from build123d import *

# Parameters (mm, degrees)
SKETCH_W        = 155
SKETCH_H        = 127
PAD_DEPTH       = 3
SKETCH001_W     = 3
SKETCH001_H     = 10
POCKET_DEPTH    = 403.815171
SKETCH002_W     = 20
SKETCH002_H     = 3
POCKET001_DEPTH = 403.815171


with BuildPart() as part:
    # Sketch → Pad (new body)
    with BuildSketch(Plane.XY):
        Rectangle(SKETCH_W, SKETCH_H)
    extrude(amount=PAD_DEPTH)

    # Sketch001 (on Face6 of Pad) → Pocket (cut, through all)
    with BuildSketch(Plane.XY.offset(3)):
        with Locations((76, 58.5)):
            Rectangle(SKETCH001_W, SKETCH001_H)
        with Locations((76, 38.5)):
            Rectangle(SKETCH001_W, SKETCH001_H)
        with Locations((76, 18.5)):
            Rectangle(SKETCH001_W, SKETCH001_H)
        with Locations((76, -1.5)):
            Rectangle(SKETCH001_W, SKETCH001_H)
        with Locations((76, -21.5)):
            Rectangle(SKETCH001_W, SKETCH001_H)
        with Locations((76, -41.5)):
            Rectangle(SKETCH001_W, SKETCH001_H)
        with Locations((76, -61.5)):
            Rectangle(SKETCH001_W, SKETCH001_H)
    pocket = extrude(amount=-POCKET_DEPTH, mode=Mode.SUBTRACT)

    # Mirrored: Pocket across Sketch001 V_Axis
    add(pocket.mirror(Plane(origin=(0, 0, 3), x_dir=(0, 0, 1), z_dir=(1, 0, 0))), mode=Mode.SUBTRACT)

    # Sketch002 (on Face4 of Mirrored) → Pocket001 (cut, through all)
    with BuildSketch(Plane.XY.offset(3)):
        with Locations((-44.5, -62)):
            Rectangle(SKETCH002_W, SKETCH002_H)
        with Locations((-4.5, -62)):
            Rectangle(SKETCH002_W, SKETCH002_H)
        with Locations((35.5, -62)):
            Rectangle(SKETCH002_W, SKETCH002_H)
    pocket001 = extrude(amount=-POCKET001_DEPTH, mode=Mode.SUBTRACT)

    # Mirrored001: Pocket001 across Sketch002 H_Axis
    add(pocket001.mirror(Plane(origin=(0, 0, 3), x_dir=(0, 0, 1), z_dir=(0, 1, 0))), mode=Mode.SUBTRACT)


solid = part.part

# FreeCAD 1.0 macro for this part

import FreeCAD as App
import Part
import Sketcher
from FreeCAD import Vector
Q = App.Units.Quantity

doc = App.newDocument("Part")
body = doc.addObject("PartDesign::Body", "Body")

# Sketch on XY plane
sketch1 = body.newObject("Sketcher::SketchObject", "Sketch")
sketch1.AttachmentSupport = (doc.getObject("XY_Plane"), [""])
sketch1.MapMode = "FlatFace"
sketch1.addGeometry(Part.LineSegment(Vector(-78, 64, 0), Vector(-78, -64, 0)), False)
sketch1.addGeometry(Part.LineSegment(Vector(-78, -64, 0), Vector(78, -64, 0)), False)
sketch1.addGeometry(Part.LineSegment(Vector(78, -64, 0), Vector(78, 64, 0)), False)
sketch1.addGeometry(Part.LineSegment(Vector(78, 64, 0), Vector(-78, 64, 0)), False)
sketch1.addConstraint(Sketcher.Constraint("Coincident", 0, 2, 1, 1))
sketch1.addConstraint(Sketcher.Constraint("Coincident", 1, 2, 2, 1))
sketch1.addConstraint(Sketcher.Constraint("Coincident", 2, 2, 3, 1))
sketch1.addConstraint(Sketcher.Constraint("Coincident", 3, 2, 0, 1))
sketch1.addConstraint(Sketcher.Constraint("Vertical", 0))
sketch1.addConstraint(Sketcher.Constraint("Horizontal", 1))
sketch1.addConstraint(Sketcher.Constraint("Vertical", 2))
sketch1.addConstraint(Sketcher.Constraint("Horizontal", 3))
sketch1.addConstraint(Sketcher.Constraint("Symmetric", 0, 2, 2, 2, -1, 1))
sketch1.addConstraint(Sketcher.Constraint("DistanceX", 1, 1, 1, 2, Q("155 mm")))
sketch1.addConstraint(Sketcher.Constraint("DistanceY", 0, 2, 0, 1, Q("127 mm")))
pad1 = body.newObject("PartDesign::Pad", "Pad")
pad1.Profile = sketch1
pad1.Length = 3

# Sketch on XY plane
sketch2 = body.newObject("Sketcher::SketchObject", "Sketch001")
sketch2.AttachmentSupport = (doc.getObject("XY_Plane"), [""])
sketch2.MapMode = "FlatFace"
sketch2.AttachmentOffset = App.Placement(Vector(0, 0, 3), App.Rotation())
sketch2.addGeometry(Part.LineSegment(Vector(74.5, 63.5, 0), Vector(74.5, 53.5, 0)), False)
sketch2.addGeometry(Part.LineSegment(Vector(74.5, 53.5, 0), Vector(77.5, 53.5, 0)), False)
sketch2.addGeometry(Part.LineSegment(Vector(77.5, 53.5, 0), Vector(77.5, 63.5, 0)), False)
sketch2.addGeometry(Part.LineSegment(Vector(77.5, 63.5, 0), Vector(74.5, 63.5, 0)), False)
sketch2.addGeometry(Part.LineSegment(Vector(74.5, 43.5, 0), Vector(74.5, 33.5, 0)), False)
sketch2.addGeometry(Part.LineSegment(Vector(74.5, 33.5, 0), Vector(77.5, 33.5, 0)), False)
sketch2.addGeometry(Part.LineSegment(Vector(77.5, 33.5, 0), Vector(77.5, 43.5, 0)), False)
sketch2.addGeometry(Part.LineSegment(Vector(77.5, 43.5, 0), Vector(74.5, 43.5, 0)), False)
sketch2.addGeometry(Part.LineSegment(Vector(74.5, 23.5, 0), Vector(74.5, 13.5, 0)), False)
sketch2.addGeometry(Part.LineSegment(Vector(74.5, 13.5, 0), Vector(77.5, 13.5, 0)), False)
sketch2.addGeometry(Part.LineSegment(Vector(77.5, 13.5, 0), Vector(77.5, 23.5, 0)), False)
sketch2.addGeometry(Part.LineSegment(Vector(77.5, 23.5, 0), Vector(74.5, 23.5, 0)), False)
sketch2.addGeometry(Part.LineSegment(Vector(74.5, 3.5, 0), Vector(74.5, -6.5, 0)), False)
sketch2.addGeometry(Part.LineSegment(Vector(74.5, -6.5, 0), Vector(77.5, -6.5, 0)), False)
sketch2.addGeometry(Part.LineSegment(Vector(77.5, -6.5, 0), Vector(77.5, 3.5, 0)), False)
sketch2.addGeometry(Part.LineSegment(Vector(77.5, 3.5, 0), Vector(74.5, 3.5, 0)), False)
sketch2.addGeometry(Part.LineSegment(Vector(74.5, -16.5, 0), Vector(74.5, -26.5, 0)), False)
sketch2.addGeometry(Part.LineSegment(Vector(74.5, -26.5, 0), Vector(77.5, -26.5, 0)), False)
sketch2.addGeometry(Part.LineSegment(Vector(77.5, -26.5, 0), Vector(77.5, -16.5, 0)), False)
sketch2.addGeometry(Part.LineSegment(Vector(77.5, -16.5, 0), Vector(74.5, -16.5, 0)), False)
sketch2.addGeometry(Part.LineSegment(Vector(74.5, -36.5, 0), Vector(74.5, -46.5, 0)), False)
sketch2.addGeometry(Part.LineSegment(Vector(74.5, -46.5, 0), Vector(77.5, -46.5, 0)), False)
sketch2.addGeometry(Part.LineSegment(Vector(77.5, -46.5, 0), Vector(77.5, -36.5, 0)), False)
sketch2.addGeometry(Part.LineSegment(Vector(77.5, -36.5, 0), Vector(74.5, -36.5, 0)), False)
sketch2.addGeometry(Part.LineSegment(Vector(74.5, -56.5, 0), Vector(74.5, -66.5, 0)), False)
sketch2.addGeometry(Part.LineSegment(Vector(74.5, -66.5, 0), Vector(77.5, -66.5, 0)), False)
sketch2.addGeometry(Part.LineSegment(Vector(77.5, -66.5, 0), Vector(77.5, -56.5, 0)), False)
sketch2.addGeometry(Part.LineSegment(Vector(77.5, -56.5, 0), Vector(74.5, -56.5, 0)), False)
sketch2.addConstraint(Sketcher.Constraint("Coincident", 0, 2, 1, 1))
sketch2.addConstraint(Sketcher.Constraint("Coincident", 1, 2, 2, 1))
sketch2.addConstraint(Sketcher.Constraint("Coincident", 2, 2, 3, 1))
sketch2.addConstraint(Sketcher.Constraint("Coincident", 3, 2, 0, 1))
sketch2.addConstraint(Sketcher.Constraint("Coincident", 4, 2, 5, 1))
sketch2.addConstraint(Sketcher.Constraint("Coincident", 5, 2, 6, 1))
sketch2.addConstraint(Sketcher.Constraint("Coincident", 6, 2, 7, 1))
sketch2.addConstraint(Sketcher.Constraint("Coincident", 7, 2, 4, 1))
sketch2.addConstraint(Sketcher.Constraint("Coincident", 8, 2, 9, 1))
sketch2.addConstraint(Sketcher.Constraint("Coincident", 9, 2, 10, 1))
sketch2.addConstraint(Sketcher.Constraint("Coincident", 10, 2, 11, 1))
sketch2.addConstraint(Sketcher.Constraint("Coincident", 11, 2, 8, 1))
sketch2.addConstraint(Sketcher.Constraint("Coincident", 12, 2, 13, 1))
sketch2.addConstraint(Sketcher.Constraint("Coincident", 13, 2, 14, 1))
sketch2.addConstraint(Sketcher.Constraint("Coincident", 14, 2, 15, 1))
sketch2.addConstraint(Sketcher.Constraint("Coincident", 15, 2, 12, 1))
sketch2.addConstraint(Sketcher.Constraint("Coincident", 16, 2, 17, 1))
sketch2.addConstraint(Sketcher.Constraint("Coincident", 17, 2, 18, 1))
sketch2.addConstraint(Sketcher.Constraint("Coincident", 18, 2, 19, 1))
sketch2.addConstraint(Sketcher.Constraint("Coincident", 19, 2, 16, 1))
sketch2.addConstraint(Sketcher.Constraint("Coincident", 20, 2, 21, 1))
sketch2.addConstraint(Sketcher.Constraint("Coincident", 21, 2, 22, 1))
sketch2.addConstraint(Sketcher.Constraint("Coincident", 22, 2, 23, 1))
sketch2.addConstraint(Sketcher.Constraint("Coincident", 23, 2, 20, 1))
sketch2.addConstraint(Sketcher.Constraint("Coincident", 24, 2, 25, 1))
sketch2.addConstraint(Sketcher.Constraint("Coincident", 25, 2, 26, 1))
sketch2.addConstraint(Sketcher.Constraint("Coincident", 26, 2, 27, 1))
sketch2.addConstraint(Sketcher.Constraint("Coincident", 27, 2, 24, 1))
sketch2.addConstraint(Sketcher.Constraint("Vertical", 0))
sketch2.addConstraint(Sketcher.Constraint("Horizontal", 1))
sketch2.addConstraint(Sketcher.Constraint("Vertical", 2))
sketch2.addConstraint(Sketcher.Constraint("Horizontal", 3))
sketch2.addConstraint(Sketcher.Constraint("Vertical", 4))
sketch2.addConstraint(Sketcher.Constraint("Horizontal", 5))
sketch2.addConstraint(Sketcher.Constraint("Vertical", 6))
sketch2.addConstraint(Sketcher.Constraint("Horizontal", 7))
sketch2.addConstraint(Sketcher.Constraint("Vertical", 8))
sketch2.addConstraint(Sketcher.Constraint("Horizontal", 9))
sketch2.addConstraint(Sketcher.Constraint("Vertical", 10))
sketch2.addConstraint(Sketcher.Constraint("Horizontal", 11))
sketch2.addConstraint(Sketcher.Constraint("Vertical", 12))
sketch2.addConstraint(Sketcher.Constraint("Horizontal", 13))
sketch2.addConstraint(Sketcher.Constraint("Vertical", 14))
sketch2.addConstraint(Sketcher.Constraint("Horizontal", 15))
sketch2.addConstraint(Sketcher.Constraint("Vertical", 16))
sketch2.addConstraint(Sketcher.Constraint("Horizontal", 17))
sketch2.addConstraint(Sketcher.Constraint("Vertical", 18))
sketch2.addConstraint(Sketcher.Constraint("Horizontal", 19))
sketch2.addConstraint(Sketcher.Constraint("Vertical", 20))
sketch2.addConstraint(Sketcher.Constraint("Horizontal", 21))
sketch2.addConstraint(Sketcher.Constraint("Vertical", 22))
sketch2.addConstraint(Sketcher.Constraint("Horizontal", 23))
sketch2.addConstraint(Sketcher.Constraint("Vertical", 24))
sketch2.addConstraint(Sketcher.Constraint("Horizontal", 25))
sketch2.addConstraint(Sketcher.Constraint("Vertical", 26))
sketch2.addConstraint(Sketcher.Constraint("Horizontal", 27))
sketch2.addConstraint(Sketcher.Constraint("Vertical", 3, 2, 4, 2))
sketch2.addConstraint(Sketcher.Constraint("Vertical", 2, 2, 5, 2))
sketch2.addConstraint(Sketcher.Constraint("Vertical", 7, 2, 8, 2))
sketch2.addConstraint(Sketcher.Constraint("Vertical", 6, 2, 9, 2))
sketch2.addConstraint(Sketcher.Constraint("Vertical", 11, 2, 12, 2))
sketch2.addConstraint(Sketcher.Constraint("Vertical", 10, 2, 13, 2))
sketch2.addConstraint(Sketcher.Constraint("Vertical", 15, 2, 16, 2))
sketch2.addConstraint(Sketcher.Constraint("Vertical", 14, 2, 17, 2))
sketch2.addConstraint(Sketcher.Constraint("Vertical", 19, 2, 20, 2))
sketch2.addConstraint(Sketcher.Constraint("Vertical", 18, 2, 21, 2))
sketch2.addConstraint(Sketcher.Constraint("Vertical", 23, 2, 24, 2))
sketch2.addConstraint(Sketcher.Constraint("Vertical", 22, 2, 25, 2))
sketch2.addConstraint(Sketcher.Constraint("Equal", 2, 4))
sketch2.addConstraint(Sketcher.Constraint("Equal", 6, 8))
sketch2.addConstraint(Sketcher.Constraint("Equal", 10, 12))
sketch2.addConstraint(Sketcher.Constraint("Equal", 14, 16))
sketch2.addConstraint(Sketcher.Constraint("Equal", 18, 20))
sketch2.addConstraint(Sketcher.Constraint("Equal", 22, 24))
sketch2.addConstraint(Sketcher.Constraint("DistanceX", 1, 1, 1, 2, Q("3 mm")))
sketch2.addConstraint(Sketcher.Constraint("DistanceY", 0, 2, 0, 1, Q("10 mm")))
sketch2.addConstraint(Sketcher.Constraint("DistanceY", 4, 2, 0, 2, Q("20 mm")))
sketch2.addConstraint(Sketcher.Constraint("DistanceY", 8, 2, 4, 2, Q("20 mm")))
sketch2.addConstraint(Sketcher.Constraint("DistanceY", 12, 2, 8, 2, Q("20 mm")))
sketch2.addConstraint(Sketcher.Constraint("DistanceY", 16, 2, 12, 2, Q("20 mm")))
sketch2.addConstraint(Sketcher.Constraint("DistanceY", 20, 2, 16, 2, Q("20 mm")))
sketch2.addConstraint(Sketcher.Constraint("DistanceY", 24, 2, 20, 2, Q("20 mm")))
sketch2.addConstraint(Sketcher.Constraint("DistanceX", -1, 1, 0, 2, Q("74.5 mm")))
sketch2.addConstraint(Sketcher.Constraint("DistanceY", -1, 1, 0, 2, Q("53.5 mm")))
pocket1 = body.newObject("PartDesign::Pocket", "Pocket")
pocket1.Profile = sketch2
pocket1.Type = "ThroughAll"
doc.recompute()

mirrored = body.newObject("PartDesign::Mirrored", "Mirrored")
mirrored.Originals = [pocket1]
mirrored.MirrorPlane = (doc.getObject("YZ_Plane"), [""])
body.Tip = mirrored

# Sketch on XY plane
sketch3 = body.newObject("Sketcher::SketchObject", "Sketch002")
sketch3.AttachmentSupport = (doc.getObject("XY_Plane"), [""])
sketch3.MapMode = "FlatFace"
sketch3.AttachmentOffset = App.Placement(Vector(0, 0, 3), App.Rotation())
sketch3.addGeometry(Part.LineSegment(Vector(-54.5, -60.5, 0), Vector(-54.5, -63.5, 0)), False)
sketch3.addGeometry(Part.LineSegment(Vector(-54.5, -63.5, 0), Vector(-34.5, -63.5, 0)), False)
sketch3.addGeometry(Part.LineSegment(Vector(-34.5, -63.5, 0), Vector(-34.5, -60.5, 0)), False)
sketch3.addGeometry(Part.LineSegment(Vector(-34.5, -60.5, 0), Vector(-54.5, -60.5, 0)), False)
sketch3.addGeometry(Part.LineSegment(Vector(-14.5, -60.5, 0), Vector(-14.5, -63.5, 0)), False)
sketch3.addGeometry(Part.LineSegment(Vector(-14.5, -63.5, 0), Vector(5.5, -63.5, 0)), False)
sketch3.addGeometry(Part.LineSegment(Vector(5.5, -63.5, 0), Vector(5.5, -60.5, 0)), False)
sketch3.addGeometry(Part.LineSegment(Vector(5.5, -60.5, 0), Vector(-14.5, -60.5, 0)), False)
sketch3.addGeometry(Part.LineSegment(Vector(25.5, -60.5, 0), Vector(25.5, -63.5, 0)), False)
sketch3.addGeometry(Part.LineSegment(Vector(25.5, -63.5, 0), Vector(45.5, -63.5, 0)), False)
sketch3.addGeometry(Part.LineSegment(Vector(45.5, -63.5, 0), Vector(45.5, -60.5, 0)), False)
sketch3.addGeometry(Part.LineSegment(Vector(45.5, -60.5, 0), Vector(25.5, -60.5, 0)), False)
sketch3.addConstraint(Sketcher.Constraint("Coincident", 0, 2, 1, 1))
sketch3.addConstraint(Sketcher.Constraint("Coincident", 1, 2, 2, 1))
sketch3.addConstraint(Sketcher.Constraint("Coincident", 2, 2, 3, 1))
sketch3.addConstraint(Sketcher.Constraint("Coincident", 3, 2, 0, 1))
sketch3.addConstraint(Sketcher.Constraint("Coincident", 4, 2, 5, 1))
sketch3.addConstraint(Sketcher.Constraint("Coincident", 5, 2, 6, 1))
sketch3.addConstraint(Sketcher.Constraint("Coincident", 6, 2, 7, 1))
sketch3.addConstraint(Sketcher.Constraint("Coincident", 7, 2, 4, 1))
sketch3.addConstraint(Sketcher.Constraint("Coincident", 8, 2, 9, 1))
sketch3.addConstraint(Sketcher.Constraint("Coincident", 9, 2, 10, 1))
sketch3.addConstraint(Sketcher.Constraint("Coincident", 10, 2, 11, 1))
sketch3.addConstraint(Sketcher.Constraint("Coincident", 11, 2, 8, 1))
sketch3.addConstraint(Sketcher.Constraint("Vertical", 0))
sketch3.addConstraint(Sketcher.Constraint("Horizontal", 1))
sketch3.addConstraint(Sketcher.Constraint("Vertical", 2))
sketch3.addConstraint(Sketcher.Constraint("Horizontal", 3))
sketch3.addConstraint(Sketcher.Constraint("Vertical", 4))
sketch3.addConstraint(Sketcher.Constraint("Horizontal", 5))
sketch3.addConstraint(Sketcher.Constraint("Vertical", 6))
sketch3.addConstraint(Sketcher.Constraint("Horizontal", 7))
sketch3.addConstraint(Sketcher.Constraint("Vertical", 8))
sketch3.addConstraint(Sketcher.Constraint("Horizontal", 9))
sketch3.addConstraint(Sketcher.Constraint("Vertical", 10))
sketch3.addConstraint(Sketcher.Constraint("Horizontal", 11))
sketch3.addConstraint(Sketcher.Constraint("Horizontal", 1, 2, 4, 2))
sketch3.addConstraint(Sketcher.Constraint("Horizontal", 3, 2, 6, 2))
sketch3.addConstraint(Sketcher.Constraint("Horizontal", 5, 2, 8, 2))
sketch3.addConstraint(Sketcher.Constraint("Horizontal", 7, 2, 10, 2))
sketch3.addConstraint(Sketcher.Constraint("Equal", 3, 5))
sketch3.addConstraint(Sketcher.Constraint("Equal", 7, 9))
sketch3.addConstraint(Sketcher.Constraint("DistanceX", 1, 1, 1, 2, Q("20 mm")))
sketch3.addConstraint(Sketcher.Constraint("DistanceY", 0, 2, 0, 1, Q("3 mm")))
sketch3.addConstraint(Sketcher.Constraint("DistanceX", 1, 2, 4, 2, Q("20 mm")))
sketch3.addConstraint(Sketcher.Constraint("DistanceX", 5, 2, 8, 2, Q("20 mm")))
sketch3.addConstraint(Sketcher.Constraint("DistanceX", 0, 2, -1, 1, Q("54.5 mm")))
sketch3.addConstraint(Sketcher.Constraint("DistanceY", 0, 2, -1, 1, Q("63.5 mm")))
pocket2 = body.newObject("PartDesign::Pocket", "Pocket001")
pocket2.Profile = sketch3
pocket2.Type = "ThroughAll"
doc.recompute()

mirrored2 = body.newObject("PartDesign::Mirrored", "Mirrored001")
mirrored2.Originals = [pocket2]
mirrored2.MirrorPlane = (doc.getObject("XZ_Plane"), [""])
body.Tip = mirrored2

doc.recompute()
